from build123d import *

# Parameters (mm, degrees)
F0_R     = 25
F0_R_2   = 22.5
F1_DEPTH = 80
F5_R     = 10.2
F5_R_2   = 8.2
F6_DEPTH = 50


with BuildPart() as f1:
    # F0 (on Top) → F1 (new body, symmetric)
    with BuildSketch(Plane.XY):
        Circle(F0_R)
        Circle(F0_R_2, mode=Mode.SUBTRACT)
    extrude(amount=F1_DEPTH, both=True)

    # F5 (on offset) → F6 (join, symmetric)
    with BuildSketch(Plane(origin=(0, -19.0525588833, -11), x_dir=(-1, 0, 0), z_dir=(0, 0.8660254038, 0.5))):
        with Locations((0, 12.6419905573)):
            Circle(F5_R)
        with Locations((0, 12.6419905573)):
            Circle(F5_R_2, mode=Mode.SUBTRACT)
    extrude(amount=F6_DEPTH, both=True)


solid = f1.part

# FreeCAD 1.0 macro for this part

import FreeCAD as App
import Part
import Sketcher
from FreeCAD import Vector

doc = App.newDocument("Part")
body = doc.addObject("PartDesign::Body", "Body")

sketch1 = body.newObject("Sketcher::SketchObject", "Sketch")
sketch1.AttachmentSupport = (doc.getObject("XY_Plane"), [""])
sketch1.MapMode = "FlatFace"
sketch1.addGeometry(Part.Circle(Vector(0, 0, 0), Vector(0, 0, 1), 25), False)
sketch1.addGeometry(Part.Circle(Vector(0, 0, 0), Vector(0, 0, 1), 22), False)
sketch1.addConstraint(Sketcher.Constraint("Coincident", 0, 3, -1, 1))
sketch1.addConstraint(Sketcher.Constraint("Coincident", 1, 3, -1, 1))
sketch1.addConstraint(Sketcher.Constraint("Diameter", 0, 50.0))
sketch1.addConstraint(Sketcher.Constraint("Diameter", 1, 45.0))
pad1 = body.newObject("PartDesign::Pad", "Pad")
pad1.Profile = sketch1
pad1.Length = 160
pad1.Midplane = True

sketch2 = body.newObject("Sketcher::SketchObject", "Sketch001")
sketch2.Placement = App.Placement(Vector(0, -19.052559, -11), App.Rotation(Vector(-1, 0, 0), Vector(0, -0.5, 0.866025404), Vector(0, 0.866025404, 0.5), "ZXY"))
sketch2.addGeometry(Part.Circle(Vector(0, 13, 0), Vector(0, 0, 1), 10), False)
sketch2.addGeometry(Part.Circle(Vector(0, 13, 0), Vector(0, 0, 1), 8), False)
sketch2.addConstraint(Sketcher.Constraint("Coincident", 1, 3, 0, 3))
sketch2.addConstraint(Sketcher.Constraint("PointOnObject", 0, 3, -2))
sketch2.addConstraint(Sketcher.Constraint("Diameter", 0, 20.4))
sketch2.addConstraint(Sketcher.Constraint("Diameter", 1, 16.4))
sketch2.addConstraint(Sketcher.Constraint("DistanceY", -1, 1, 0, 3, 12.641991))
pad2 = body.newObject("PartDesign::Pad", "Pad001")
pad2.Profile = sketch2
pad2.Length = 100
pad2.Midplane = True

doc.recompute()
